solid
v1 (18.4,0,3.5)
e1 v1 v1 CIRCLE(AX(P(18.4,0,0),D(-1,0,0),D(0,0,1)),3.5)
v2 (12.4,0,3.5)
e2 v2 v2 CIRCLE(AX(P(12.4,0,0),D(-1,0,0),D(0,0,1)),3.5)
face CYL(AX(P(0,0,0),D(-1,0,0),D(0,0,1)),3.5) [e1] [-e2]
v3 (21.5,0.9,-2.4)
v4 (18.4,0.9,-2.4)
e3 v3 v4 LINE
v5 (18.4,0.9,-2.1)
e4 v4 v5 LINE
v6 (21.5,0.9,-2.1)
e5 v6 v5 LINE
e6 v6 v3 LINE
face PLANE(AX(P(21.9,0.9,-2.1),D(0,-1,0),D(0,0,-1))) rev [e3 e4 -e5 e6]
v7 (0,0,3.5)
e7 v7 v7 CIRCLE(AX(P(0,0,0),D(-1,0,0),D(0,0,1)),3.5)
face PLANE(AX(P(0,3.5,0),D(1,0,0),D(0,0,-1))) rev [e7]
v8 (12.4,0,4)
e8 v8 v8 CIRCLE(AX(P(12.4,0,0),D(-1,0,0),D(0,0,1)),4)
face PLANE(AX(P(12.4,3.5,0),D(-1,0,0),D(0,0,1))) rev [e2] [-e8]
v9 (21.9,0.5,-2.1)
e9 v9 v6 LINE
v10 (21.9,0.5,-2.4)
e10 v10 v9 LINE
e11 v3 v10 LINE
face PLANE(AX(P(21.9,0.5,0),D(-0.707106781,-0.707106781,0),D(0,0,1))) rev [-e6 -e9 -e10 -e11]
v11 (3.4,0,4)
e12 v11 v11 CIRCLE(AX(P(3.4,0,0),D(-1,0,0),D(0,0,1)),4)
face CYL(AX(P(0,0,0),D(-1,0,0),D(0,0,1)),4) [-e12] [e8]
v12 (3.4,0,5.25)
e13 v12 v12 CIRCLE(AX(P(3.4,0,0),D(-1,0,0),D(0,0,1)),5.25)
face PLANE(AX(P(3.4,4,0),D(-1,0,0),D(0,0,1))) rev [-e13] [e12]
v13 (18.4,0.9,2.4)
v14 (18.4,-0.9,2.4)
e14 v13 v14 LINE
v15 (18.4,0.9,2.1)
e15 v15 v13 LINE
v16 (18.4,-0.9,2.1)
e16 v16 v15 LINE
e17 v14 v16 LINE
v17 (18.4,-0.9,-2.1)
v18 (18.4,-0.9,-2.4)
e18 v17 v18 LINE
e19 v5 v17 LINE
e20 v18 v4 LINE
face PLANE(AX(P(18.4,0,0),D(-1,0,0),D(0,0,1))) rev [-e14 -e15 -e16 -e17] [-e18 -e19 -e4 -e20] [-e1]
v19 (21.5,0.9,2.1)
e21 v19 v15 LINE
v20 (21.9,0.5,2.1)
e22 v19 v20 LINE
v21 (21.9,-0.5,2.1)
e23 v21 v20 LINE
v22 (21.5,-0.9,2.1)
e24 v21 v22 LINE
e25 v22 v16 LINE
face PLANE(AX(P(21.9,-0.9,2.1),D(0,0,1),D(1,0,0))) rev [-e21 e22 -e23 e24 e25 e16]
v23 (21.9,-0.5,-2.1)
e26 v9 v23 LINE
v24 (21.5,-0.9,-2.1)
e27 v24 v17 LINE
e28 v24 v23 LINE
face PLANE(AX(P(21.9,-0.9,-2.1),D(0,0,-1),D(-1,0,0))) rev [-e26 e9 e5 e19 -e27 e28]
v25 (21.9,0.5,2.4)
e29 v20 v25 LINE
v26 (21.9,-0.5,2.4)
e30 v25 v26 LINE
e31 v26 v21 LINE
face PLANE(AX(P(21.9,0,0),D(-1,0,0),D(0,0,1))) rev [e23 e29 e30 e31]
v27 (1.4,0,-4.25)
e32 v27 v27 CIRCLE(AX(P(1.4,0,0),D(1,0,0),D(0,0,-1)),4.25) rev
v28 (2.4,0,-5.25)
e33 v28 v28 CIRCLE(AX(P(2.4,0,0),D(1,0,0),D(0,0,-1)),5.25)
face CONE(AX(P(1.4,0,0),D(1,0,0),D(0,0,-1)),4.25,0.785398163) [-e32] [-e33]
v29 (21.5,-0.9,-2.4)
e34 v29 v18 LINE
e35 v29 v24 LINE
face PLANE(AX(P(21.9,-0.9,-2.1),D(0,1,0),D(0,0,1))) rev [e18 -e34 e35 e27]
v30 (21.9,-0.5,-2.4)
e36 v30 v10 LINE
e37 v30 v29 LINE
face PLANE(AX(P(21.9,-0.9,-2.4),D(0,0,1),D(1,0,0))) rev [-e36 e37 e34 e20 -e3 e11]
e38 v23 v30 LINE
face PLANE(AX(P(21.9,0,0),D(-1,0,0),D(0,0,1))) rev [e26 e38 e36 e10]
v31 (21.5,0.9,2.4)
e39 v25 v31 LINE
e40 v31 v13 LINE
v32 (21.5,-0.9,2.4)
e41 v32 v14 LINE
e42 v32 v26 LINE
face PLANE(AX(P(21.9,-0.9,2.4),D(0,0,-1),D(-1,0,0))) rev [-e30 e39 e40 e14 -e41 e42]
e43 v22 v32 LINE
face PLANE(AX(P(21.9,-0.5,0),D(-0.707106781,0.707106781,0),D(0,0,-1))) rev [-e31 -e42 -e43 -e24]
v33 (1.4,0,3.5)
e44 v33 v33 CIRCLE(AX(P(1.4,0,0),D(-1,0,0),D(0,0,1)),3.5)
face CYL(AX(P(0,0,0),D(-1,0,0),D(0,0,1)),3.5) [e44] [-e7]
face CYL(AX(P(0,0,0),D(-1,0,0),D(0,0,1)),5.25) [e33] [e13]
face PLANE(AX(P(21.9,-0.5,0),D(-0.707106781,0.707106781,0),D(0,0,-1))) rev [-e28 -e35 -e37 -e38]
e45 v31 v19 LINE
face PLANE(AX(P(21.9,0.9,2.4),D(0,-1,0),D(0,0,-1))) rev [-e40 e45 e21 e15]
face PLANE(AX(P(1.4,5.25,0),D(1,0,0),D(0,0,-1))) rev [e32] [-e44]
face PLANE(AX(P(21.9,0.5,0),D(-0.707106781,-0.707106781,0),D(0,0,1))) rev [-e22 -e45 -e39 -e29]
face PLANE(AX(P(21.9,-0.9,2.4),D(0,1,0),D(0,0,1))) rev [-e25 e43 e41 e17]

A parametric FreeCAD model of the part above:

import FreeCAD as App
import Part
import Sketcher
from FreeCAD import Vector


def edges_at(feature, points):
    """Names of the edges that pass closest to the given points."""
    edges = feature.Shape.Edges
    near = lambda p: min(range(len(edges)), key=lambda i: edges[i].distToShape(Part.Vertex(*p))[0])
    return sorted({f"Edge{near(p) + 1}" for p in points})


def add_polygon(sketch, points):
    """Adds a closed chain of lines whose ends are joined by coincident constraints."""
    first, n = sketch.GeometryCount, len(points)
    for a, b in zip(points, points[1:] + points[:1]):
        sketch.addGeometry(Part.LineSegment(App.Vector(*a, 0), App.Vector(*b, 0)), False)
    for i in range(n):
        sketch.addConstraint(Sketcher.Constraint("Coincident", first + i, 2, first + (i + 1) % n, 1))

doc = App.newDocument("Part")
body = doc.addObject("PartDesign::Body", "Body")

# Sketch on XY plane
sketch1 = doc.addObject("Sketcher::SketchObject", "Sketch")
body.addObject(sketch1)
sketch1.AttachmentSupport = (doc.XY_Plane, [""])
sketch1.MapMode = "FlatFace"
add_polygon(sketch1, [(18.4, 0), (18.4, 3.5), (12.4, 3.5), (12.4, 4), (3.4, 4), (3.4, 5.2), (1.4, 5.2), (1.4, 3.5), (0, 3.5), (0, 0)])  # lines 0-9
sketch1.addConstraint([
    Sketcher.Constraint("Vertical", 0),
    Sketcher.Constraint("Horizontal", 1),
    Sketcher.Constraint("Vertical", 2),
    Sketcher.Constraint("Horizontal", 3),
    Sketcher.Constraint("Vertical", 4),
    Sketcher.Constraint("Horizontal", 5),
    Sketcher.Constraint("Vertical", 6),
    Sketcher.Constraint("Horizontal", 7),
    Sketcher.Constraint("Vertical", 8),
    Sketcher.Constraint("Horizontal", 9),
    Sketcher.Constraint("Coincident", 8, 2, -1, 1),
    Sketcher.Constraint("Horizontal", 1, 2, 6, 2),
    Sketcher.Constraint("DistanceX", 1, 2, 1, 1, 6.0),
    Sketcher.Constraint("DistanceX", 3, 2, 3, 1, 9.0),
    Sketcher.Constraint("DistanceX", 5, 2, 5, 1, 2.0),
    Sketcher.Constraint("DistanceX", 7, 2, 7, 1, 1.4),
    Sketcher.Constraint("DistanceY", 0, 1, 0, 2, 3.5),
    Sketcher.Constraint("DistanceY", 2, 1, 2, 2, 0.5),
    Sketcher.Constraint("DistanceY", 4, 1, 4, 2, 1.25),
])
revolution = doc.addObject("PartDesign::Revolution", "Revolution")
body.addObject(revolution)
revolution.Profile = sketch1
revolution.ReferenceAxis = (sketch1, ["H_Axis"])
revolution.Angle = 360
doc.recompute()

chamfer = doc.addObject("PartDesign::Chamfer", "Chamfer")
body.addObject(chamfer)
chamfer.Base = (revolution, edges_at(revolution, [(1.4, -5.25, 0)]))
chamfer.Size = 1

# Sketch on YZ plane
sketch2 = doc.addObject("Sketcher::SketchObject", "Sketch001")
body.addObject(sketch2)
sketch2.AttachmentSupport = (doc.YZ_Plane, [""])
sketch2.MapMode = "FlatFace"
sketch2.AttachmentOffset = App.Placement(Vector(0, 0, 18.4), App.Rotation())
add_polygon(sketch2, [(0.9, 2.4), (-0.9, 2.4), (-0.9, 2.1), (0.9, 2.1)])  # lines 0-3
add_polygon(sketch2, [(0.9, -2.1), (-0.9, -2.1), (-0.9, -2.4), (0.9, -2.4)])  # lines 4-7
sketch2.addConstraint([
    Sketcher.Constraint("Horizontal", 0),
    Sketcher.Constraint("Vertical", 1),
    Sketcher.Constraint("Horizontal", 2),
    Sketcher.Constraint("Vertical", 3),
    Sketcher.Constraint("Horizontal", 4),
    Sketcher.Constraint("Vertical", 5),
    Sketcher.Constraint("Horizontal", 6),
    Sketcher.Constraint("Vertical", 7),
    Sketcher.Constraint("Symmetric", 2, 2, 4, 2, -1, 1),
    Sketcher.Constraint("Symmetric", 0, 2, 6, 2, -1, 1),
    Sketcher.Constraint("Vertical", 1, 2, 4, 2),
    Sketcher.Constraint("DistanceX", 0, 2, 0, 1, 1.8),
    Sketcher.Constraint("DistanceY", 1, 2, 1, 1, 0.3),
    Sketcher.Constraint("DistanceY", -1, 1, 0, 2, 2.4),
])
pad1 = doc.addObject("PartDesign::Pad", "Pad")
body.addObject(pad1)
pad1.Profile = sketch2
pad1.Length = 3.5
doc.recompute()

chamfer2 = doc.addObject("PartDesign::Chamfer", "Chamfer001")
body.addObject(chamfer2)
chamfer2.Base = (pad1, edges_at(pad1, [
    (21.9, 0.9, 2.25),
    (21.9, -0.9, 2.25),
    (21.9, 0.9, -2.25),
    (21.9, -0.9, -2.25),
]))
chamfer2.Size = 0.4

doc.recompute()
